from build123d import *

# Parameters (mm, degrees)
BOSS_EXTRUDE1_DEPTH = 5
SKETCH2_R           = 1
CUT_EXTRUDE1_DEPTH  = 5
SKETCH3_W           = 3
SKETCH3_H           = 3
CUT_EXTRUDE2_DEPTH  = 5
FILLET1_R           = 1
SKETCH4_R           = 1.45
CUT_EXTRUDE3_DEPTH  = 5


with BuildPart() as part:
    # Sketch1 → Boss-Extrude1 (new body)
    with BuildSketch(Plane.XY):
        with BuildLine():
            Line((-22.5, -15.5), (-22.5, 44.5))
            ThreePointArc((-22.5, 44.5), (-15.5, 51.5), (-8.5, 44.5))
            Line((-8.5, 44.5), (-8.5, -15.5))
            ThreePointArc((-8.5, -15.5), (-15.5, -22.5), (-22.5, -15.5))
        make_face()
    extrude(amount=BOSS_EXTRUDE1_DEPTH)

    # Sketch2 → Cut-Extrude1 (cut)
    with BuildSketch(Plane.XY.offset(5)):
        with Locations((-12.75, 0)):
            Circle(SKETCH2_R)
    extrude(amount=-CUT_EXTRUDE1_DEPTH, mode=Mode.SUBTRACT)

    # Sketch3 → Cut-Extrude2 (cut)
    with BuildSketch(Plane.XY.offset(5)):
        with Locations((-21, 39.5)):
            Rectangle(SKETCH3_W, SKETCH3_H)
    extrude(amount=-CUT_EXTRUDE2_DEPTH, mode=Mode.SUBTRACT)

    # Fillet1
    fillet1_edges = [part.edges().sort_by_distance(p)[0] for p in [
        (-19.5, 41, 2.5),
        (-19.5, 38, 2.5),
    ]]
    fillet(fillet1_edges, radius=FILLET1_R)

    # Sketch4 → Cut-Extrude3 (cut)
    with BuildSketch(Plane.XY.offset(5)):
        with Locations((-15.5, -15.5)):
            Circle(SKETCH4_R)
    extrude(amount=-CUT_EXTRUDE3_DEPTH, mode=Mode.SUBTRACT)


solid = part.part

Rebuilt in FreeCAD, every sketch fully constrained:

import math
import FreeCAD as App
import Part
import Sketcher
from FreeCAD import Vector


def edges_at(feature, points):
    """Names of the edges that pass closest to the given points."""
    edges = feature.Shape.Edges
    near = lambda p: min(range(len(edges)), key=lambda i: edges[i].distToShape(Part.Vertex(*p))[0])
    return sorted({f"Edge{near(p) + 1}" for p in points})

doc = App.newDocument("Part")
params = doc.addObject("Spreadsheet::Sheet", "Params")
for row, (alias, value) in enumerate([
    ("sketch1_radius", "7 mm"),
    ("sketch1_height", "60 mm"),
    ("pad1_length", "5 mm"),
    ("sketch2_diameter", "2 mm"),
    ("pocket1_length", "5 mm"),
    ("sketch3_width", "3 mm"),
    ("pocket2_length", "5 mm"),
    ("fillet_radius", "1 mm"),
    ("sketch4_diameter", "2.9 mm"),
    ("pocket3_length", "5 mm"),
], start=1):
    params.set(f"A{row}", alias)
    params.set(f"B{row}", "=" + value)
    params.setAlias(f"B{row}", alias)

body = doc.addObject("PartDesign::Body", "Body")

# Sketch on XY plane
sketch1 = doc.addObject("Sketcher::SketchObject", "Sketch")
body.addObject(sketch1)
sketch1.AttachmentSupport = (doc.XY_Plane, [""])
sketch1.MapMode = "FlatFace"
sketch1.addGeometry([
    Part.LineSegment(Vector(-22, 44, 0), Vector(-22, -16, 0)),
    Part.ArcOfCircle(Part.Circle(Vector(-16, -16, 0), Vector(0, 0, 1), 7), math.radians(180), math.radians(360)),
    Part.LineSegment(Vector(-8, -16, 0), Vector(-8, 44, 0)),
    Part.ArcOfCircle(Part.Circle(Vector(-16, 44, 0), Vector(0, 0, 1), 7), math.radians(0), math.radians(180)),
], False)
sketch1.addConstraint([
    Sketcher.Constraint("Tangent", 0, 2, 1, 1),
    Sketcher.Constraint("Tangent", 1, 2, 2, 1),
    Sketcher.Constraint("Tangent", 2, 2, 3, 1),
    Sketcher.Constraint("Tangent", 3, 2, 0, 1),
    Sketcher.Constraint("Vertical", 0),
    Sketcher.Constraint("Vertical", 2),
    Sketcher.Constraint("Radius", 1, 7.0),
    Sketcher.Constraint("DistanceY", 0, 2, 0, 1, 60.0),
    Sketcher.Constraint("DistanceX", 1, 3, -1, 1, 15.5),
    Sketcher.Constraint("DistanceY", 1, 3, -1, 1, 15.5),
])
sketch1.setExpression("Constraints[6]", "Params.sketch1_radius")
sketch1.setExpression("Constraints[7]", "Params.sketch1_height")
pad1 = doc.addObject("PartDesign::Pad", "Pad")
body.addObject(pad1)
pad1.Profile = sketch1
pad1.setExpression("Length", "Params.pad1_length")

# Sketch on XY plane
sketch2 = doc.addObject("Sketcher::SketchObject", "Sketch001")
body.addObject(sketch2)
sketch2.AttachmentSupport = (doc.XY_Plane, [""])
sketch2.MapMode = "FlatFace"
sketch2.AttachmentOffset = App.Placement(Vector(0, 0, 5), App.Rotation())
sketch2.addGeometry(Part.Circle(Vector(-12.8, 0, 0), Vector(0, 0, 1), 1), False)
sketch2.addConstraint([
    Sketcher.Constraint("PointOnObject", 0, 3, -1),
    Sketcher.Constraint("Diameter", 0, 2.0),
    Sketcher.Constraint("DistanceX", 0, 3, -1, 1, 12.75),
])
sketch2.setExpression("Constraints[1]", "Params.sketch2_diameter")
pocket1 = doc.addObject("PartDesign::Pocket", "Pocket")
body.addObject(pocket1)
pocket1.Profile = sketch2
pocket1.setExpression("Length", "Params.pocket1_length")

# Sketch on XY plane
sketch3 = doc.addObject("Sketcher::SketchObject", "Sketch002")
body.addObject(sketch3)
sketch3.AttachmentSupport = (doc.XY_Plane, [""])
sketch3.MapMode = "FlatFace"
sketch3.AttachmentOffset = App.Placement(Vector(0, 0, 5), App.Rotation())
sketch3.addGeometry([
    Part.LineSegment(Vector(-22.5, 41, 0), Vector(-22.5, 38, 0)),
    Part.LineSegment(Vector(-22.5, 38, 0), Vector(-19.5, 38, 0)),
    Part.LineSegment(Vector(-19.5, 38, 0), Vector(-19.5, 41, 0)),
    Part.LineSegment(Vector(-19.5, 41, 0), Vector(-22.5, 41, 0)),
], False)
sketch3.addConstraint([
    Sketcher.Constraint("Coincident", 0, 2, 1, 1),
    Sketcher.Constraint("Coincident", 1, 2, 2, 1),
    Sketcher.Constraint("Coincident", 2, 2, 3, 1),
    Sketcher.Constraint("Coincident", 3, 2, 0, 1),
    Sketcher.Constraint("Vertical", 0),
    Sketcher.Constraint("Horizontal", 1),
    Sketcher.Constraint("Vertical", 2),
    Sketcher.Constraint("Horizontal", 3),
    Sketcher.Constraint("Equal", 3, 0),
    Sketcher.Constraint("DistanceX", 1, 1, 1, 2, 3.0),
    Sketcher.Constraint("DistanceY", -1, 1, 0, 2, 38.0),
    Sketcher.Constraint("DistanceX", 0, 2, -1, 1, 22.5),
])
sketch3.setExpression("Constraints[9]", "Params.sketch3_width")
pocket2 = doc.addObject("PartDesign::Pocket", "Pocket001")
body.addObject(pocket2)
pocket2.Profile = sketch3
pocket2.setExpression("Length", "Params.pocket2_length")
doc.recompute()

fillet = doc.addObject("PartDesign::Fillet", "Fillet")
body.addObject(fillet)
fillet.Base = (pocket2, edges_at(pocket2, [(-19.5, 41, 2.5), (-19.5, 38, 2.5)]))
fillet.setExpression("Radius", "Params.fillet_radius")

# Sketch on XY plane
sketch4 = doc.addObject("Sketcher::SketchObject", "Sketch003")
body.addObject(sketch4)
sketch4.AttachmentSupport = (doc.XY_Plane, [""])
sketch4.MapMode = "FlatFace"
sketch4.AttachmentOffset = App.Placement(Vector(0, 0, 5), App.Rotation())
sketch4.addGeometry(Part.Circle(Vector(-15.5, -15.5, 0), Vector(0, 0, 1), 1.4), False)
sketch4.addConstraint([
    Sketcher.Constraint("Diameter", 0, 2.9),
    Sketcher.Constraint("DistanceX", 0, 3, -1, 1, 15.5),
    Sketcher.Constraint("DistanceY", 0, 3, -1, 1, 15.5),
])
sketch4.setExpression("Constraints[0]", "Params.sketch4_diameter")
pocket3 = doc.addObject("PartDesign::Pocket", "Pocket002")
body.addObject(pocket3)
pocket3.Profile = sketch4
pocket3.setExpression("Length", "Params.pocket3_length")

doc.recompute()
